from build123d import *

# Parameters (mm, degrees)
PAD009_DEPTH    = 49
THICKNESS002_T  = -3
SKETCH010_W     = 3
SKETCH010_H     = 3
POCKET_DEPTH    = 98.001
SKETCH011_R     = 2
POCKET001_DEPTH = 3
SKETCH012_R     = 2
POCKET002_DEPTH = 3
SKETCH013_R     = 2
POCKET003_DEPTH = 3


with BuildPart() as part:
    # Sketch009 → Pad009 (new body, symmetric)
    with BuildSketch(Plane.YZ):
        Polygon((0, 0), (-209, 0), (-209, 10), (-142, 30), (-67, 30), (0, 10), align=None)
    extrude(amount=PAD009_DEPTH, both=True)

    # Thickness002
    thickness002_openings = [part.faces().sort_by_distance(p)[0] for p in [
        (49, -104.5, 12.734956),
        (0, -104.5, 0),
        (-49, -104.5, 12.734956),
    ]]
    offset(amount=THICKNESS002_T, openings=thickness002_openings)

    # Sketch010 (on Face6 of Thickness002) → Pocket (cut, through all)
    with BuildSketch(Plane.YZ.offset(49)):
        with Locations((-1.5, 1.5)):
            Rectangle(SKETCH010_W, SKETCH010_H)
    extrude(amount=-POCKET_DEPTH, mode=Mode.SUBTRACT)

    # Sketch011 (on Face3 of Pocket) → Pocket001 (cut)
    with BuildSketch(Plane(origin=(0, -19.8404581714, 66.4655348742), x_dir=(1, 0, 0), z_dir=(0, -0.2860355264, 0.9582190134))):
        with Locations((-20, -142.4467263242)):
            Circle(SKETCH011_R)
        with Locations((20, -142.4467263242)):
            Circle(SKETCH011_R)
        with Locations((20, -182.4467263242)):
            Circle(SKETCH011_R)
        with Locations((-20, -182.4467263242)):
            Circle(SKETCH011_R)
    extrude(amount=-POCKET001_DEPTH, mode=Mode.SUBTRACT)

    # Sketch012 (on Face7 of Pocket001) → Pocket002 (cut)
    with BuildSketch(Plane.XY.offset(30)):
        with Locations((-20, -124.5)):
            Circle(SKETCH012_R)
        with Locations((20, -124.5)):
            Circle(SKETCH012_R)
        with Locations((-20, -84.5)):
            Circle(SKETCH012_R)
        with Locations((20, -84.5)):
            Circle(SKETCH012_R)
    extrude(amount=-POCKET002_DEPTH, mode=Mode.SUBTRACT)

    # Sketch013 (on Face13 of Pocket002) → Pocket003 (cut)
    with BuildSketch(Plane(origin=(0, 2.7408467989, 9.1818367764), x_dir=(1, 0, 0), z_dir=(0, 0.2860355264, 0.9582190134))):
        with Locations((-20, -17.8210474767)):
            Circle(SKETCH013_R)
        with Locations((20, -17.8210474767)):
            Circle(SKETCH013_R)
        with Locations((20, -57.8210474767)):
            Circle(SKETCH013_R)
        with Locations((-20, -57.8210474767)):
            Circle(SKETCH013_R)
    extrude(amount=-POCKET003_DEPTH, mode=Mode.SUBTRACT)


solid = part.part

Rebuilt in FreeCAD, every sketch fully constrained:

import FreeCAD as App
import Part
import Sketcher
from FreeCAD import Vector
Q = App.Units.Quantity


def faces_at(feature, points):
    """Names of the faces that lie closest to the given points."""
    faces = feature.Shape.Faces
    near = lambda p: min(range(len(faces)), key=lambda i: faces[i].distToShape(Part.Vertex(*p))[0])
    return sorted({f"Face{near(p) + 1}" for p in points})

doc = App.newDocument("Part")
body = doc.addObject("PartDesign::Body", "Body")

sketch1 = body.newObject("Sketcher::SketchObject", "Sketch")
sketch1.AttachmentSupport = (doc.getObject("YZ_Plane"), [""])
sketch1.MapMode = "FlatFace"
sketch1.addGeometry(Part.LineSegment(Vector(-209, 0, 0), Vector(0, 0, 0)), False)
sketch1.addGeometry(Part.LineSegment(Vector(0, 0, 0), Vector(0, 10, 0)), False)
sketch1.addGeometry(Part.LineSegment(Vector(0, 10, 0), Vector(-67, 30, 0)), False)
sketch1.addGeometry(Part.LineSegment(Vector(-67, 30, 0), Vector(-142, 30, 0)), False)
sketch1.addGeometry(Part.LineSegment(Vector(-142, 30, 0), Vector(-209, 10, 0)), False)
sketch1.addGeometry(Part.LineSegment(Vector(-209, 10, 0), Vector(-209, 0, 0)), False)
sketch1.addConstraint(Sketcher.Constraint("Coincident", 0, 2, 1, 1))
sketch1.addConstraint(Sketcher.Constraint("Coincident", 1, 2, 2, 1))
sketch1.addConstraint(Sketcher.Constraint("Coincident", 2, 2, 3, 1))
sketch1.addConstraint(Sketcher.Constraint("Coincident", 3, 2, 4, 1))
sketch1.addConstraint(Sketcher.Constraint("Coincident", 4, 2, 5, 1))
sketch1.addConstraint(Sketcher.Constraint("Coincident", 5, 2, 0, 1))
sketch1.addConstraint(Sketcher.Constraint("Horizontal", 0))
sketch1.addConstraint(Sketcher.Constraint("Vertical", 1))
sketch1.addConstraint(Sketcher.Constraint("Horizontal", 3))
sketch1.addConstraint(Sketcher.Constraint("Vertical", 5))
sketch1.addConstraint(Sketcher.Constraint("Coincident", 0, 2, -1, 1))
sketch1.addConstraint(Sketcher.Constraint("Horizontal", 1, 2, 4, 2))
sketch1.addConstraint(Sketcher.Constraint("Equal", 2, 4))
sketch1.addConstraint(Sketcher.Constraint("DistanceX", 0, 1, 0, 2, Q("209 mm")))
sketch1.addConstraint(Sketcher.Constraint("DistanceX", 3, 2, 3, 1, Q("75 mm")))
sketch1.addConstraint(Sketcher.Constraint("DistanceY", 1, 1, 1, 2, Q("10 mm")))
sketch1.addConstraint(Sketcher.Constraint("DistanceY", -1, 1, 2, 2, Q("30 mm")))
pad1 = body.newObject("PartDesign::Pad", "Pad")
pad1.Profile = sketch1
pad1.Length = 98
pad1.Midplane = True
doc.recompute()

thickness = body.newObject("PartDesign::Thickness", "Thickness")
thickness.Base = (pad1, faces_at(pad1, [(49, -104.5, 15), (0, -104.5, 0), (-49, -104.5, 15)]))
thickness.Value = 3
thickness.Reversed = True
thickness.Join = "Arc"

sketch2 = body.newObject("Sketcher::SketchObject", "Sketch001")
sketch2.AttachmentSupport = (doc.getObject("YZ_Plane"), [""])
sketch2.MapMode = "FlatFace"
sketch2.AttachmentOffset = App.Placement(Vector(0, 0, 49), App.Rotation())
sketch2.addGeometry(Part.LineSegment(Vector(-3, 3, 0), Vector(-3, 0, 0)), False)
sketch2.addGeometry(Part.LineSegment(Vector(-3, 0, 0), Vector(0, 0, 0)), False)
sketch2.addGeometry(Part.LineSegment(Vector(0, 0, 0), Vector(0, 3, 0)), False)
sketch2.addGeometry(Part.LineSegment(Vector(0, 3, 0), Vector(-3, 3, 0)), False)
sketch2.addConstraint(Sketcher.Constraint("Coincident", 0, 2, 1, 1))
sketch2.addConstraint(Sketcher.Constraint("Coincident", 1, 2, 2, 1))
sketch2.addConstraint(Sketcher.Constraint("Coincident", 2, 2, 3, 1))
sketch2.addConstraint(Sketcher.Constraint("Coincident", 3, 2, 0, 1))
sketch2.addConstraint(Sketcher.Constraint("Vertical", 0))
sketch2.addConstraint(Sketcher.Constraint("Horizontal", 1))
sketch2.addConstraint(Sketcher.Constraint("Vertical", 2))
sketch2.addConstraint(Sketcher.Constraint("Horizontal", 3))
sketch2.addConstraint(Sketcher.Constraint("Coincident", 1, 2, -1, 1))
sketch2.addConstraint(Sketcher.Constraint("Equal", 3, 0))
sketch2.addConstraint(Sketcher.Constraint("DistanceX", 1, 1, 1, 2, Q("3 mm")))
pocket1 = body.newObject("PartDesign::Pocket", "Pocket")
pocket1.Profile = sketch2
pocket1.Type = "ThroughAll"

sketch3 = body.newObject("Sketcher::SketchObject", "Sketch002")
sketch3.Placement = App.Placement(Vector(0, -19.840458, 66.465535), App.Rotation(Vector(1, 0, 0), Vector(0, 0.958219013, 0.286035526), Vector(0, -0.286035526, 0.958219013), "ZXY"))
sketch3.addGeometry(Part.Circle(Vector(-20, -142.4, 0), Vector(0, 0, 1), 2), False)
sketch3.addGeometry(Part.Circle(Vector(20, -142.4, 0), Vector(0, 0, 1), 2), False)
sketch3.addGeometry(Part.Circle(Vector(20, -182.4, 0), Vector(0, 0, 1), 2), False)
sketch3.addGeometry(Part.Circle(Vector(-20, -182.4, 0), Vector(0, 0, 1), 2), False)
sketch3.addConstraint(Sketcher.Constraint("Equal", 0, 1))
sketch3.addConstraint(Sketcher.Constraint("Equal", 1, 2))
sketch3.addConstraint(Sketcher.Constraint("Equal", 2, 3))
sketch3.addConstraint(Sketcher.Constraint("Symmetric", 0, 3, 1, 3, -2))
sketch3.addConstraint(Sketcher.Constraint("Symmetric", 2, 3, 3, 3, -2))
sketch3.addConstraint(Sketcher.Constraint("Vertical", 1, 3, 2, 3))
sketch3.addConstraint(Sketcher.Constraint("Diameter", 0, Q("4 mm")))
sketch3.addConstraint(Sketcher.Constraint("DistanceX", 0, 3, -1, 1, Q("20 mm")))
sketch3.addConstraint(Sketcher.Constraint("DistanceY", 2, 3, 1, 3, Q("40 mm")))
sketch3.addConstraint(Sketcher.Constraint("DistanceY", 0, 3, -1, 1, Q("142.446726 mm")))
pocket2 = body.newObject("PartDesign::Pocket", "Pocket001")
pocket2.Profile = sketch3
pocket2.Length = 3

sketch4 = body.newObject("Sketcher::SketchObject", "Sketch003")
sketch4.AttachmentSupport = (doc.getObject("XY_Plane"), [""])
sketch4.MapMode = "FlatFace"
sketch4.AttachmentOffset = App.Placement(Vector(0, 0, 30), App.Rotation())
sketch4.addGeometry(Part.Circle(Vector(-20, -124.5, 0), Vector(0, 0, 1), 2), False)
sketch4.addGeometry(Part.Circle(Vector(20, -124.5, 0), Vector(0, 0, 1), 2), False)
sketch4.addGeometry(Part.Circle(Vector(-20, -84.5, 0), Vector(0, 0, 1), 2), False)
sketch4.addGeometry(Part.Circle(Vector(20, -84.5, 0), Vector(0, 0, 1), 2), False)
sketch4.addConstraint(Sketcher.Constraint("Equal", 0, 1))
sketch4.addConstraint(Sketcher.Constraint("Equal", 1, 2))
sketch4.addConstraint(Sketcher.Constraint("Equal", 2, 3))
sketch4.addConstraint(Sketcher.Constraint("Symmetric", 0, 3, 1, 3, -2))
sketch4.addConstraint(Sketcher.Constraint("Symmetric", 2, 3, 3, 3, -2))
sketch4.addConstraint(Sketcher.Constraint("Vertical", 0, 3, 2, 3))
sketch4.addConstraint(Sketcher.Constraint("Diameter", 0, Q("4 mm")))
sketch4.addConstraint(Sketcher.Constraint("DistanceX", 0, 3, -1, 1, Q("20 mm")))
sketch4.addConstraint(Sketcher.Constraint("DistanceY", 0, 3, 2, 3, Q("40 mm")))
sketch4.addConstraint(Sketcher.Constraint("DistanceY", 0, 3, -1, 1, Q("124.5 mm")))
pocket3 = body.newObject("PartDesign::Pocket", "Pocket002")
pocket3.Profile = sketch4
pocket3.Length = 3

sketch5 = body.newObject("Sketcher::SketchObject", "Sketch004")
sketch5.Placement = App.Placement(Vector(0, 2.740847, 9.181837), App.Rotation(Vector(1, 0, 0), Vector(0, 0.958219013, -0.286035526), Vector(0, 0.286035526, 0.958219013), "ZXY"))
sketch5.addGeometry(Part.Circle(Vector(-20, -17.8, 0), Vector(0, 0, 1), 2), False)
sketch5.addGeometry(Part.Circle(Vector(20, -17.8, 0), Vector(0, 0, 1), 2), False)
sketch5.addGeometry(Part.Circle(Vector(20, -57.8, 0), Vector(0, 0, 1), 2), False)
sketch5.addGeometry(Part.Circle(Vector(-20, -57.8, 0), Vector(0, 0, 1), 2), False)
sketch5.addConstraint(Sketcher.Constraint("Equal", 0, 1))
sketch5.addConstraint(Sketcher.Constraint("Equal", 1, 2))
sketch5.addConstraint(Sketcher.Constraint("Equal", 2, 3))
sketch5.addConstraint(Sketcher.Constraint("Symmetric", 0, 3, 1, 3, -2))
sketch5.addConstraint(Sketcher.Constraint("Symmetric", 2, 3, 3, 3, -2))
sketch5.addConstraint(Sketcher.Constraint("Vertical", 1, 3, 2, 3))
sketch5.addConstraint(Sketcher.Constraint("Diameter", 0, Q("4 mm")))
sketch5.addConstraint(Sketcher.Constraint("DistanceX", 0, 3, -1, 1, Q("20 mm")))
sketch5.addConstraint(Sketcher.Constraint("DistanceY", 2, 3, 1, 3, Q("40 mm")))
sketch5.addConstraint(Sketcher.Constraint("DistanceY", 0, 3, -1, 1, Q("17.821047 mm")))
pocket4 = body.newObject("PartDesign::Pocket", "Pocket003")
pocket4.Profile = sketch5
pocket4.Length = 3

doc.recompute()
